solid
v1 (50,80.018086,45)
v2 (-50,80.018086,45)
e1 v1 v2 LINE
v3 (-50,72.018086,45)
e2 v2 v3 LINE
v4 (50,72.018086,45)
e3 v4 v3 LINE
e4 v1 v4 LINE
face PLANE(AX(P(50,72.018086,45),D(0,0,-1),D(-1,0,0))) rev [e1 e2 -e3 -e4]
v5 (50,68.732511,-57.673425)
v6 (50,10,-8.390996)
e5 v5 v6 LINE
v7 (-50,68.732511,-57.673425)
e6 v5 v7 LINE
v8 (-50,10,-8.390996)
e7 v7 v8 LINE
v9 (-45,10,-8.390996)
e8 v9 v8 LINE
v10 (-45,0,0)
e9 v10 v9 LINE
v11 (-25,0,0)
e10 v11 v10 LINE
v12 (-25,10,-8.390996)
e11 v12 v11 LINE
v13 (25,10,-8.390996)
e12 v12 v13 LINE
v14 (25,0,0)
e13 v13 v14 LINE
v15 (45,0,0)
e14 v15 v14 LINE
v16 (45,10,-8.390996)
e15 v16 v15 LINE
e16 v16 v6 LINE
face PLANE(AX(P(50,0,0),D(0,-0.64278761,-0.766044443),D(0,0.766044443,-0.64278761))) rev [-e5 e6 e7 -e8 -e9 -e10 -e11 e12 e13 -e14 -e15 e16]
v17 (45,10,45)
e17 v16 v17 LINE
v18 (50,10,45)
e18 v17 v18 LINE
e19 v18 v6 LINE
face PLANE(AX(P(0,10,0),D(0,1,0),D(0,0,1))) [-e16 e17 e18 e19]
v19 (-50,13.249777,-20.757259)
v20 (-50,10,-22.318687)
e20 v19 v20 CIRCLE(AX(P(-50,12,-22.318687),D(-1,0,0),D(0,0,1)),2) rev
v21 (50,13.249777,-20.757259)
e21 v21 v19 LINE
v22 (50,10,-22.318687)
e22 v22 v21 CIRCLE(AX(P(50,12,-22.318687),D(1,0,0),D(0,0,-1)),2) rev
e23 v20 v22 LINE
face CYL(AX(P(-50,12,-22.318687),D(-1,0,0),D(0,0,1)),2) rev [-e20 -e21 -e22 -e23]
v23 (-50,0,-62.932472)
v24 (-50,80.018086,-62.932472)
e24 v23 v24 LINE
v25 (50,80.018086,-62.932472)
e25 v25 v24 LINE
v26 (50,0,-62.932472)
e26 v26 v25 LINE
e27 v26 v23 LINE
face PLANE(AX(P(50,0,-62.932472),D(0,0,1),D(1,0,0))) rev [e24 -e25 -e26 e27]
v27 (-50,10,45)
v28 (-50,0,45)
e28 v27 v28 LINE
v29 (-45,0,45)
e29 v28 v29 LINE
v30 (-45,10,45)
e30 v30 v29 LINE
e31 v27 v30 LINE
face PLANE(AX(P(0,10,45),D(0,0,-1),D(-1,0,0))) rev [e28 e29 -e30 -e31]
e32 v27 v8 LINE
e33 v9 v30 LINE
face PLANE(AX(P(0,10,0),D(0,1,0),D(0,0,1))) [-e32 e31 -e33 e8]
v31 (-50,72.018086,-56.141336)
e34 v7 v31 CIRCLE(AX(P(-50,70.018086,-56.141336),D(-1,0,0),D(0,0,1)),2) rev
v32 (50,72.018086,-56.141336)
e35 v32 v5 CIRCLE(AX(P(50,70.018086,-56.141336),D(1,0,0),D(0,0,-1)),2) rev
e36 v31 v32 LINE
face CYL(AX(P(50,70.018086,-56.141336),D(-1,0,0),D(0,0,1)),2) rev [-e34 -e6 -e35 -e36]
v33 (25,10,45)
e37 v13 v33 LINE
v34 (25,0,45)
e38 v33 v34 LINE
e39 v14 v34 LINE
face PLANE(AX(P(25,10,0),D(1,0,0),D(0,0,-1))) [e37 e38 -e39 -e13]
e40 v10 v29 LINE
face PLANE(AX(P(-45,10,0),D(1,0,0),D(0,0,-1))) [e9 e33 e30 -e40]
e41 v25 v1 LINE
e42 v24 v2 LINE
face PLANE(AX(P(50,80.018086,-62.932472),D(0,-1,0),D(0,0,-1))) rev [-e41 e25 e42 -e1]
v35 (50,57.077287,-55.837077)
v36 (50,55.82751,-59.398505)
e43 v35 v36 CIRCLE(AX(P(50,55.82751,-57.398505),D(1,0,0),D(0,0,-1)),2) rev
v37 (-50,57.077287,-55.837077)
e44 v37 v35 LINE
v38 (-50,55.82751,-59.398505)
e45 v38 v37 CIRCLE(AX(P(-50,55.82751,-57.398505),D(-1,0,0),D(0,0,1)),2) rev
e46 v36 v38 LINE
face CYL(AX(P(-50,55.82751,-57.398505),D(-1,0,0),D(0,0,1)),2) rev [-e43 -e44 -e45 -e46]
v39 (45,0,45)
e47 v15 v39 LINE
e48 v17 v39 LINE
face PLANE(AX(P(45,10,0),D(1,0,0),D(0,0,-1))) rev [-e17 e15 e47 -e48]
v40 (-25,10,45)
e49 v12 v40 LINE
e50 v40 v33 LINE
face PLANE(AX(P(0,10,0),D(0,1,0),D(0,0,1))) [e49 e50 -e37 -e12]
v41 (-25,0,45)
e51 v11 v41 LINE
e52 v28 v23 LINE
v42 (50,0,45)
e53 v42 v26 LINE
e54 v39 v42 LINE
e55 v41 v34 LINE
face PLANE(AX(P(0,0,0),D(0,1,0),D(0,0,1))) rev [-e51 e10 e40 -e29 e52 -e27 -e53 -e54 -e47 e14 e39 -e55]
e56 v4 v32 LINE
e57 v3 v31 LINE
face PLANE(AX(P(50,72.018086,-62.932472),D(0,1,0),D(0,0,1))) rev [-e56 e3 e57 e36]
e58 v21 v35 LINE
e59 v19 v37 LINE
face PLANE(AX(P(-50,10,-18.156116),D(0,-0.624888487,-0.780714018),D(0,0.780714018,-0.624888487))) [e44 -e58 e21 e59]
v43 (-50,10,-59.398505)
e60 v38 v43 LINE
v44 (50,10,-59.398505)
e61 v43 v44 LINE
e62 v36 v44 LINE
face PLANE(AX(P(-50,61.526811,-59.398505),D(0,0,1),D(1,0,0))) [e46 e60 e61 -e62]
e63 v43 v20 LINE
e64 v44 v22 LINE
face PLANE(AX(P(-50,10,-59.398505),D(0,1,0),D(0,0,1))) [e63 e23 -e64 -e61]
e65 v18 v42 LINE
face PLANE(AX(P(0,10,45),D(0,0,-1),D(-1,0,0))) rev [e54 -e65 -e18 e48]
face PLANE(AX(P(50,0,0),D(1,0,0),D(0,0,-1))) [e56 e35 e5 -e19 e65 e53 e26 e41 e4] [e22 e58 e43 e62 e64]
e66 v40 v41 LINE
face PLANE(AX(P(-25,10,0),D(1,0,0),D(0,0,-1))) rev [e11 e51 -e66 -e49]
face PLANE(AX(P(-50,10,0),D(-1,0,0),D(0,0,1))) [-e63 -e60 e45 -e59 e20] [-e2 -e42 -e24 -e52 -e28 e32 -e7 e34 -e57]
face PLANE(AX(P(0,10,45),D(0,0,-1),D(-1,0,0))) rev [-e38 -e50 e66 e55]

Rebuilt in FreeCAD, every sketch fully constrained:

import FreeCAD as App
import Part
import Sketcher
from FreeCAD import Vector
Q = App.Units.Quantity


def edges_at(feature, points):
    """Names of the edges that pass closest to the given points."""
    edges = feature.Shape.Edges
    near = lambda p: min(range(len(edges)), key=lambda i: edges[i].distToShape(Part.Vertex(*p))[0])
    return sorted({f"Edge{near(p) + 1}" for p in points})

doc = App.newDocument("Part")
params = doc.addObject("Spreadsheet::Sheet", "Params")
for row, (alias, value) in enumerate([
    ("sketch1_width", "5 mm"),
    ("sketch1_height", "90 mm"),
    ("pad1_length", "10 mm"),
    ("sketch2_width", "5 mm"),
    ("sketch2_height", "90 mm"),
    ("pad2_length", "10 mm"),
    ("sketch3_width", "50 mm"),
    ("sketch3_height", "90 mm"),
    ("pad3_length", "10 mm"),
    ("sketch4_width", "75 mm"),
    ("pad4_length", "100 mm"),
    ("sketch5_width", "8 mm"),
    ("pad5_length", "100 mm"),
    ("fillet_radius", "2 mm"),
    ("fillet2_radius", "2 mm"),
], start=1):
    params.set(f"A{row}", alias)
    params.set(f"B{row}", "=" + value)
    params.setAlias(f"B{row}", alias)

body = doc.addObject("PartDesign::Body", "Body")

sketch1 = body.newObject("Sketcher::SketchObject", "Sketch")
sketch1.AttachmentSupport = (doc.getObject("XZ_Plane"), [""])
sketch1.MapMode = "FlatFace"
sketch1.addGeometry([
    Part.LineSegment(Vector(-50, -45, 0), Vector(-50, 45, 0)),
    Part.LineSegment(Vector(-50, 45, 0), Vector(-45, 45, 0)),
    Part.LineSegment(Vector(-45, 45, 0), Vector(-45, -45, 0)),
    Part.LineSegment(Vector(-45, -45, 0), Vector(-50, -45, 0)),
], False)
sketch1.addConstraint([
    Sketcher.Constraint("Coincident", 0, 2, 1, 1),
    Sketcher.Constraint("Coincident", 1, 2, 2, 1),
    Sketcher.Constraint("Coincident", 2, 2, 3, 1),
    Sketcher.Constraint("Coincident", 3, 2, 0, 1),
    Sketcher.Constraint("Vertical", 0),
    Sketcher.Constraint("Horizontal", 1),
    Sketcher.Constraint("Vertical", 2),
    Sketcher.Constraint("Horizontal", 3),
    Sketcher.Constraint("DistanceX", 1, 1, 1, 2, Q("5 mm")),
    Sketcher.Constraint("DistanceY", 0, 1, 0, 2, Q("90 mm")),
    Sketcher.Constraint("DistanceX", 0, 2, -1, 1, Q("50 mm")),
    Sketcher.Constraint("DistanceY", -1, 1, 0, 2, Q("45 mm")),
])
sketch1.setExpression("Constraints[8]", "Params.sketch1_width")
sketch1.setExpression("Constraints[9]", "Params.sketch1_height")
pad1 = body.newObject("PartDesign::Pad", "Pad")
pad1.Profile = sketch1
pad1.setExpression("Length", "Params.pad1_length")
pad1.Reversed = True
body2 = doc.addObject("PartDesign::Body", "Body001")

sketch2 = body2.newObject("Sketcher::SketchObject", "Sketch001")
sketch2.AttachmentSupport = (doc.getObject("XZ_Plane001"), [""])
sketch2.MapMode = "FlatFace"
sketch2.addGeometry([
    Part.LineSegment(Vector(45, -45, 0), Vector(45, 45, 0)),
    Part.LineSegment(Vector(45, 45, 0), Vector(50, 45, 0)),
    Part.LineSegment(Vector(50, 45, 0), Vector(50, -45, 0)),
    Part.LineSegment(Vector(50, -45, 0), Vector(45, -45, 0)),
], False)
sketch2.addConstraint([
    Sketcher.Constraint("Coincident", 0, 2, 1, 1),
    Sketcher.Constraint("Coincident", 1, 2, 2, 1),
    Sketcher.Constraint("Coincident", 2, 2, 3, 1),
    Sketcher.Constraint("Coincident", 3, 2, 0, 1),
    Sketcher.Constraint("Vertical", 0),
    Sketcher.Constraint("Horizontal", 1),
    Sketcher.Constraint("Vertical", 2),
    Sketcher.Constraint("Horizontal", 3),
    Sketcher.Constraint("DistanceX", 1, 1, 1, 2, Q("5 mm")),
    Sketcher.Constraint("DistanceY", 0, 1, 0, 2, Q("90 mm")),
    Sketcher.Constraint("DistanceX", -1, 1, 0, 2, Q("45 mm")),
    Sketcher.Constraint("DistanceY", -1, 1, 0, 2, Q("45 mm")),
])
sketch2.setExpression("Constraints[8]", "Params.sketch2_width")
sketch2.setExpression("Constraints[9]", "Params.sketch2_height")
pad2 = body2.newObject("PartDesign::Pad", "Pad001")
pad2.Profile = sketch2
pad2.setExpression("Length", "Params.pad2_length")
pad2.Reversed = True
body3 = doc.addObject("PartDesign::Body", "Body002")

sketch3 = body3.newObject("Sketcher::SketchObject", "Sketch002")
sketch3.AttachmentSupport = (doc.getObject("XZ_Plane002"), [""])
sketch3.MapMode = "FlatFace"
sketch3.addGeometry([
    Part.LineSegment(Vector(-25, -45, 0), Vector(-25, 45, 0)),
    Part.LineSegment(Vector(-25, 45, 0), Vector(25, 45, 0)),
    Part.LineSegment(Vector(25, 45, 0), Vector(25, -45, 0)),
    Part.LineSegment(Vector(25, -45, 0), Vector(-25, -45, 0)),
], False)
sketch3.addConstraint([
    Sketcher.Constraint("Coincident", 0, 2, 1, 1),
    Sketcher.Constraint("Coincident", 1, 2, 2, 1),
    Sketcher.Constraint("Coincident", 2, 2, 3, 1),
    Sketcher.Constraint("Coincident", 3, 2, 0, 1),
    Sketcher.Constraint("Vertical", 0),
    Sketcher.Constraint("Horizontal", 1),
    Sketcher.Constraint("Vertical", 2),
    Sketcher.Constraint("Horizontal", 3),
    Sketcher.Constraint("Symmetric", 0, 2, 2, 2, -1, 1),
    Sketcher.Constraint("DistanceX", 1, 1, 1, 2, Q("50 mm")),
    Sketcher.Constraint("DistanceY", 0, 1, 0, 2, Q("90 mm")),
])
sketch3.setExpression("Constraints[9]", "Params.sketch3_width")
sketch3.setExpression("Constraints[10]", "Params.sketch3_height")
pad3 = body3.newObject("PartDesign::Pad", "Pad002")
pad3.Profile = sketch3
pad3.setExpression("Length", "Params.pad3_length")
pad3.Reversed = True
body.AllowCompound = True
doc.recompute()

boolean = body.newObject("PartDesign::Boolean", "Boolean")
boolean.Type = "Fuse"
boolean.addObjects([body2])
doc.recompute()

boolean2 = body.newObject("PartDesign::Boolean", "Boolean001")
boolean2.Type = "Fuse"
boolean2.addObjects([body3])

sketch4 = body.newObject("Sketcher::SketchObject", "Sketch003")
sketch4.AttachmentSupport = (doc.getObject("YZ_Plane"), [""])
sketch4.MapMode = "FlatFace"
sketch4.addGeometry([
    Part.LineSegment(Vector(75, -63, 0), Vector(0, 0, 0)),
    Part.LineSegment(Vector(0, 0, 0), Vector(0, -63, 0)),
    Part.LineSegment(Vector(0, -63, 0), Vector(75, -63, 0)),
], False)
sketch4.addConstraint([
    Sketcher.Constraint("Coincident", 0, 2, 1, 1),
    Sketcher.Constraint("Coincident", 1, 2, 2, 1),
    Sketcher.Constraint("Coincident", 2, 2, 0, 1),
    Sketcher.Constraint("Vertical", 1),
    Sketcher.Constraint("Horizontal", 2),
    Sketcher.Constraint("Coincident", 0, 2, -1, 1),
    Sketcher.Constraint("DistanceX", 2, 1, 2, 2, Q("75 mm")),
    Sketcher.Constraint("Angle", 0, Q("140 deg")),
])
sketch4.setExpression("Constraints[6]", "Params.sketch4_width")
pad4 = body.newObject("PartDesign::Pad", "Pad003")
pad4.Profile = sketch4
pad4.setExpression("Length", "Params.pad4_length")
pad4.Midplane = True

sketch5 = body.newObject("Sketcher::SketchObject", "Sketch004")
sketch5.AttachmentSupport = (doc.getObject("YZ_Plane"), [""])
sketch5.MapMode = "FlatFace"
sketch5.addGeometry([
    Part.LineSegment(Vector(80, 45, 0), Vector(72, 45, 0)),
    Part.LineSegment(Vector(72, 45, 0), Vector(72, -63, 0)),
    Part.LineSegment(Vector(72, -63, 0), Vector(80, -63, 0)),
    Part.LineSegment(Vector(80, -63, 0), Vector(80, 45, 0)),
], False)
sketch5.addConstraint([
    Sketcher.Constraint("Coincident", 0, 2, 1, 1),
    Sketcher.Constraint("Coincident", 1, 2, 2, 1),
    Sketcher.Constraint("Coincident", 2, 2, 3, 1),
    Sketcher.Constraint("Coincident", 3, 2, 0, 1),
    Sketcher.Constraint("Horizontal", 0),
    Sketcher.Constraint("Vertical", 1),
    Sketcher.Constraint("Horizontal", 2),
    Sketcher.Constraint("Vertical", 3),
    Sketcher.Constraint("DistanceX", 0, 2, 0, 1, Q("8 mm")),
    Sketcher.Constraint("DistanceY", -1, 1, 0, 2, Q("45 mm")),
    Sketcher.Constraint("DistanceY", 1, 2, 1, 1, Q("107.932472 mm")),
    Sketcher.Constraint("DistanceX", -1, 1, 0, 2, Q("72.018086 mm")),
])
sketch5.setExpression("Constraints[8]", "Params.sketch5_width")
pad5 = body.newObject("PartDesign::Pad", "Pad004")
pad5.Profile = sketch5
pad5.setExpression("Length", "Params.pad5_length")
pad5.Midplane = True

sketch6 = body.newObject("Sketcher::SketchObject", "Sketch005")
sketch6.AttachmentSupport = (doc.getObject("YZ_Plane"), [""])
sketch6.MapMode = "FlatFace"
sketch6.addGeometry([
    Part.LineSegment(Vector(62, -59, 0), Vector(10, -18, 0)),
    Part.LineSegment(Vector(10, -18, 0), Vector(10, -59, 0)),
    Part.LineSegment(Vector(10, -59, 0), Vector(62, -59, 0)),
], False)
sketch6.addConstraint([
    Sketcher.Constraint("Coincident", 0, 2, 1, 1),
    Sketcher.Constraint("Coincident", 1, 2, 2, 1),
    Sketcher.Constraint("Coincident", 2, 2, 0, 1),
    Sketcher.Constraint("Vertical", 1),
    Sketcher.Constraint("Horizontal", 2),
    Sketcher.Constraint("DistanceX", -1, 1, 0, 2, Q("10 mm")),
    Sketcher.Constraint("DistanceX", 2, 1, 2, 2, Q("51.526811 mm")),
    Sketcher.Constraint("DistanceY", 1, 2, 1, 1, Q("41.242389 mm")),
    Sketcher.Constraint("DistanceY", 0, 2, -1, 1, Q("18.156116 mm")),
])
pocket1 = body.newObject("PartDesign::Pocket", "Pocket")
pocket1.Profile = sketch6
pocket1.Type = "ThroughAll"
pocket1.Midplane = True
doc.recompute()

fillet = body.newObject("PartDesign::Fillet", "Fillet")
fillet.Base = (pocket1, edges_at(pocket1, [(0, 61.527, -59.399), (0, 10, -18.156)]))
fillet.setExpression("Radius", "Params.fillet_radius")
doc.recompute()

fillet2 = body.newObject("PartDesign::Fillet", "Fillet001")
fillet2.Base = (fillet, edges_at(fillet, [(0, 72.018, -60.43)]))
fillet2.setExpression("Radius", "Params.fillet2_radius")

doc.recompute()
